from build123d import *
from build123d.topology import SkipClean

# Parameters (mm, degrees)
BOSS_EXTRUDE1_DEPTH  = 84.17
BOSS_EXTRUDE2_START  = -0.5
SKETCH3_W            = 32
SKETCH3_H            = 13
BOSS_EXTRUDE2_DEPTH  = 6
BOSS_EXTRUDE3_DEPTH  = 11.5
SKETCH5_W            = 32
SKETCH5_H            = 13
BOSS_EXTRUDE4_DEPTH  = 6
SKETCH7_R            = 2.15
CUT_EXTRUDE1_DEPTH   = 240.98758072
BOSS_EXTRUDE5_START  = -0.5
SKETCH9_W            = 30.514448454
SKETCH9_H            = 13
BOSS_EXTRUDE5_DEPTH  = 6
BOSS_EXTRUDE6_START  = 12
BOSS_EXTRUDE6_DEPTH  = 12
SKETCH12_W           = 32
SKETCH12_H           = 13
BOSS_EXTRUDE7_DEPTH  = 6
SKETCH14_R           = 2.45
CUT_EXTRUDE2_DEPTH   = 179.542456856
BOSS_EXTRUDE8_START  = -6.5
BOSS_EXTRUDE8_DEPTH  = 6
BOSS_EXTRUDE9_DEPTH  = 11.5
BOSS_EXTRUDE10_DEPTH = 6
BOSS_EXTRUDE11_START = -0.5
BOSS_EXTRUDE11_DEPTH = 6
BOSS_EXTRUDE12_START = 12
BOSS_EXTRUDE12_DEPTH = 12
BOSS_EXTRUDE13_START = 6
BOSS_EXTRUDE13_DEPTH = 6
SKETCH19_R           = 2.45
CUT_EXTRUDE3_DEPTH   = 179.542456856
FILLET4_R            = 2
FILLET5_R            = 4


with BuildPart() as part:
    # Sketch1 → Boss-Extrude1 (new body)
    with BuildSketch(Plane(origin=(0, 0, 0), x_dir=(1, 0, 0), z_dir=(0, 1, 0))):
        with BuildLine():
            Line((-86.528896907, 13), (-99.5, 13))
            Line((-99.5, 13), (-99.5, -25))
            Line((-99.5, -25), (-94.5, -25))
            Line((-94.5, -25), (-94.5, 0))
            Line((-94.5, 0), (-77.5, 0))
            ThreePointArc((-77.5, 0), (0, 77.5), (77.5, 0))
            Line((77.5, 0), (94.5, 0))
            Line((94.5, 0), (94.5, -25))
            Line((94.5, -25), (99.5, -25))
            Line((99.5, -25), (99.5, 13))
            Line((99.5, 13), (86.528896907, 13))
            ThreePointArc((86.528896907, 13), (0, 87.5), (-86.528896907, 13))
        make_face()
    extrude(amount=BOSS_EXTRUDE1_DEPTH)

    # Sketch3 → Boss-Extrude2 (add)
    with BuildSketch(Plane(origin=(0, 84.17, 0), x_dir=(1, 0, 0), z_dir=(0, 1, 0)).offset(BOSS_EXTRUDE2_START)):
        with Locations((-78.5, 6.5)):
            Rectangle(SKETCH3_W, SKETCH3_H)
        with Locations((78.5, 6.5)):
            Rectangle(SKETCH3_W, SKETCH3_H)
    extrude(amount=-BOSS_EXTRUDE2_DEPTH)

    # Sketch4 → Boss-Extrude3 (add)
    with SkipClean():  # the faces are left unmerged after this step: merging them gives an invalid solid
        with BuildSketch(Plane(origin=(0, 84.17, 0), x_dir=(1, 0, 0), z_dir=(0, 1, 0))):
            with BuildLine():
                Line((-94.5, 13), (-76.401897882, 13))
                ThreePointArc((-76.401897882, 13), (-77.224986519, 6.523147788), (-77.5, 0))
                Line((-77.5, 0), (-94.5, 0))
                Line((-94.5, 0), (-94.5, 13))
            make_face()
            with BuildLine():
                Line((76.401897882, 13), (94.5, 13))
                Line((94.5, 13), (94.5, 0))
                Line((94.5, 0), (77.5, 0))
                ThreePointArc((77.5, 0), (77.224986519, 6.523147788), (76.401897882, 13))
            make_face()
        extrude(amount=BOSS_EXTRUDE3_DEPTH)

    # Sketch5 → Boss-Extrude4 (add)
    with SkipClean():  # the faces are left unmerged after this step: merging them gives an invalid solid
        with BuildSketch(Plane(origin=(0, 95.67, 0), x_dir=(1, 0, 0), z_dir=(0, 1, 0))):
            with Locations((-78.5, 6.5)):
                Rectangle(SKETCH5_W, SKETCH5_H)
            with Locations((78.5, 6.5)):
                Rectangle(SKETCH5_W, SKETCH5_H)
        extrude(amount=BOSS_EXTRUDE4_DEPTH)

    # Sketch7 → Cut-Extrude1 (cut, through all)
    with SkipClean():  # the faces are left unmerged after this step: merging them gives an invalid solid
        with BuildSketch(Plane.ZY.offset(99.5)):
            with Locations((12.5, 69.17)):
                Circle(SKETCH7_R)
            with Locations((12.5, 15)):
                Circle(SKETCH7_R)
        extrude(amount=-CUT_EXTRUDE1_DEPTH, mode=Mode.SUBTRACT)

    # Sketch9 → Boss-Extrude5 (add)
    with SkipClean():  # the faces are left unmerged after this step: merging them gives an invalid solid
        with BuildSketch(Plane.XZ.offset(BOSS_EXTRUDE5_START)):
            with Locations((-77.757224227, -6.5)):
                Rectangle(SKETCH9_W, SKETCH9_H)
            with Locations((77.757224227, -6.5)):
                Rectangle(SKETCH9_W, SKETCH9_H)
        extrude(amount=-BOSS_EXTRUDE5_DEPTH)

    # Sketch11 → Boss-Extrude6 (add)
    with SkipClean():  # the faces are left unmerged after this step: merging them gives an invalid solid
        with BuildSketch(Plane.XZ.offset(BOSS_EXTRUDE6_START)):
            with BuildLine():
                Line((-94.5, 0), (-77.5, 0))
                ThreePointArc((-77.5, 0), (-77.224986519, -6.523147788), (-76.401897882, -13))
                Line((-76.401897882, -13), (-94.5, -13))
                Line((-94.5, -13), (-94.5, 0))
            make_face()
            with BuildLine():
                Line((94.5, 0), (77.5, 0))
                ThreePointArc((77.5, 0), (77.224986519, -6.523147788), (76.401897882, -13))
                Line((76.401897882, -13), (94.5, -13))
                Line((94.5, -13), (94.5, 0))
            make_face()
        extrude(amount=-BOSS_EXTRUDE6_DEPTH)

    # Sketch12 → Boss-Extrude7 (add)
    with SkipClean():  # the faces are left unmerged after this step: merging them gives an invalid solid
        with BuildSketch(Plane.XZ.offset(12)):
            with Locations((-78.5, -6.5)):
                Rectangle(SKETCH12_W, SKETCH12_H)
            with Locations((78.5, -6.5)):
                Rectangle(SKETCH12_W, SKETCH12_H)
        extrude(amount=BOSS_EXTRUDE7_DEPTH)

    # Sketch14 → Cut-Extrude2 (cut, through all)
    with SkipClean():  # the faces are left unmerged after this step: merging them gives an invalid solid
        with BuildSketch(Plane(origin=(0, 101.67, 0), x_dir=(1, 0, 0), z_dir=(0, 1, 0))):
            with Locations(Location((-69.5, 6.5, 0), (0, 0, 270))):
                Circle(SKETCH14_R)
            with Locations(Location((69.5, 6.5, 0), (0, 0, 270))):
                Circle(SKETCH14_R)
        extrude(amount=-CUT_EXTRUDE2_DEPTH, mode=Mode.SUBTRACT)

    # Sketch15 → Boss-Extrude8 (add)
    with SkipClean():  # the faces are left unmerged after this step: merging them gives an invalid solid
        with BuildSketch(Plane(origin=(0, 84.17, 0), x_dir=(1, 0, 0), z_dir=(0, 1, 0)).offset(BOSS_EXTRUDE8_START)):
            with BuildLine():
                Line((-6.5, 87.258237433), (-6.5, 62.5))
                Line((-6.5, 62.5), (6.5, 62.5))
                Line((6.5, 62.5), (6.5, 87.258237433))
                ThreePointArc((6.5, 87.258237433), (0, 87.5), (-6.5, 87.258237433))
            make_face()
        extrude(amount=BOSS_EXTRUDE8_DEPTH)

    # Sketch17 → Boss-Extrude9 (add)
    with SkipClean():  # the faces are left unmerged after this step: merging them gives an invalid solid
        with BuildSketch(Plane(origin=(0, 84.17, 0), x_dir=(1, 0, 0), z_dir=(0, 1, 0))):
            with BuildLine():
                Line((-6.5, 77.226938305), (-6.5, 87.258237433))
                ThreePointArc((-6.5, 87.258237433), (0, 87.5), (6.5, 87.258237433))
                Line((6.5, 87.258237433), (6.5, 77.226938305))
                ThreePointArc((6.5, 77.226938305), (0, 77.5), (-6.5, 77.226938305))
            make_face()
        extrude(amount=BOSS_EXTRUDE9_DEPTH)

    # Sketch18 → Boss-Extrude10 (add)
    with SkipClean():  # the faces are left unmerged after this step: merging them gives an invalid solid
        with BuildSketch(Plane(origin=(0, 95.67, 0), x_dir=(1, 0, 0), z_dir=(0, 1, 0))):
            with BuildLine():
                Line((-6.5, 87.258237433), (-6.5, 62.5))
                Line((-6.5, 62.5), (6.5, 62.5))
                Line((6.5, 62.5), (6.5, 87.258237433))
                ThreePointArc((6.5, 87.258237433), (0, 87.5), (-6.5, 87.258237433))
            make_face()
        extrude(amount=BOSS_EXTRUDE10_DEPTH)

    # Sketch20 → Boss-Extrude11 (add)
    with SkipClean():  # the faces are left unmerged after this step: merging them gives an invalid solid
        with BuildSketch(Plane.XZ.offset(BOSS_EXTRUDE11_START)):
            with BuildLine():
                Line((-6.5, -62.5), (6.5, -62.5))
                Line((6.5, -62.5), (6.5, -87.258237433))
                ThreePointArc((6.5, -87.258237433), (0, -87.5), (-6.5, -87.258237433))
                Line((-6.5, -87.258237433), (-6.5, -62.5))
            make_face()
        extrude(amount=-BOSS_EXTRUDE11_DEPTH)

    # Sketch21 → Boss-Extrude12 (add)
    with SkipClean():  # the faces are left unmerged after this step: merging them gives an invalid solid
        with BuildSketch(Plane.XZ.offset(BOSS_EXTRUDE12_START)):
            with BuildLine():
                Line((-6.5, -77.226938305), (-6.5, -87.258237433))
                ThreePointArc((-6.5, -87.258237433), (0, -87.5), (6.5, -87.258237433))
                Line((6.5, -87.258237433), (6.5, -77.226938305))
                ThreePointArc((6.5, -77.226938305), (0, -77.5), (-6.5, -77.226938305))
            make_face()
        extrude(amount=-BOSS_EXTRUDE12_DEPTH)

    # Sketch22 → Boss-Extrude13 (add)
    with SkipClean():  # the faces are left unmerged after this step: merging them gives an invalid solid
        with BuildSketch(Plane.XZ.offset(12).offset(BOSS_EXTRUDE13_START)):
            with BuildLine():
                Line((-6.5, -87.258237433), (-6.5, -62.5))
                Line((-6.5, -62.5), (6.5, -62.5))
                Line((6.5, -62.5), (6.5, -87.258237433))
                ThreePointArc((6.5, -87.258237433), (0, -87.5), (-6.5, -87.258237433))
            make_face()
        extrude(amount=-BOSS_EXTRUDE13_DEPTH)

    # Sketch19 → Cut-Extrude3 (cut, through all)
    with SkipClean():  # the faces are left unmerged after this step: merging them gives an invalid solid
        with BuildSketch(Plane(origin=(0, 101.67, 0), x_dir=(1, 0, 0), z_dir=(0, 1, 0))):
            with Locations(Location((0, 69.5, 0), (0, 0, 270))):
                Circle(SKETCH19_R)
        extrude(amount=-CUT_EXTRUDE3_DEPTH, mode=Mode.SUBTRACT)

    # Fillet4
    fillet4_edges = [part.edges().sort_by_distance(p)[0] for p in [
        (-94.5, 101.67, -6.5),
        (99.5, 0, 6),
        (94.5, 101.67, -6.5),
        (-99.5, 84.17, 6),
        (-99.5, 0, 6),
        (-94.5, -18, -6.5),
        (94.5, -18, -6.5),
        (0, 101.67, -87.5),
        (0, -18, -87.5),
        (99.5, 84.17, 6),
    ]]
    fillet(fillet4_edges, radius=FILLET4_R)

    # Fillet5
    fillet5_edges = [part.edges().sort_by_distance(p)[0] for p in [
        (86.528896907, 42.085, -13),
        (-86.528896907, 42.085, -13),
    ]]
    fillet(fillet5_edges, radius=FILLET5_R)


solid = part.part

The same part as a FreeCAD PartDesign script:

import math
import FreeCAD as App
import Part
import Sketcher
from FreeCAD import Vector


def edges_at(feature, points):
    """Names of the edges that pass closest to the given points."""
    edges = feature.Shape.Edges
    near = lambda p: min(range(len(edges)), key=lambda i: edges[i].distToShape(Part.Vertex(*p))[0])
    return sorted({f"Edge{near(p) + 1}" for p in points})

doc = App.newDocument("Part")
body = doc.addObject("PartDesign::Body", "Body")

# Sketch on XZ plane
sketch1 = body.newObject("Sketcher::SketchObject", "Sketch")
sketch1.AttachmentSupport = (doc.getObject("XZ_Plane"), [""])
sketch1.MapMode = "FlatFace"
sketch1.addGeometry(Part.LineSegment(Vector(-87, -13, 0), Vector(-100, -13, 0)), False)
sketch1.addGeometry(Part.LineSegment(Vector(-100, -13, 0), Vector(-100, 25, 0)), False)
sketch1.addGeometry(Part.LineSegment(Vector(-100, 25, 0), Vector(-94, 25, 0)), False)
sketch1.addGeometry(Part.LineSegment(Vector(-94, 25, 0), Vector(-94, 0, 0)), False)
sketch1.addGeometry(Part.LineSegment(Vector(-94, 0, 0), Vector(-78, 0, 0)), False)
sketch1.addGeometry(Part.ArcOfCircle(Part.Circle(Vector(0, 0, 0), Vector(0, 0, 1), 78), math.radians(180), math.radians(360)), False)
sketch1.addGeometry(Part.LineSegment(Vector(78, 0, 0), Vector(94, 0, 0)), False)
sketch1.addGeometry(Part.LineSegment(Vector(94, 0, 0), Vector(94, 25, 0)), False)
sketch1.addGeometry(Part.LineSegment(Vector(94, 25, 0), Vector(100, 25, 0)), False)
sketch1.addGeometry(Part.LineSegment(Vector(100, 25, 0), Vector(100, -13, 0)), False)
sketch1.addGeometry(Part.LineSegment(Vector(100, -13, 0), Vector(87, -13, 0)), False)
sketch1.addGeometry(Part.ArcOfCircle(Part.Circle(Vector(0, 0, 0), Vector(0, 0, 1), 88), math.radians(-171), math.radians(-9)), False)
sketch1.addConstraint(Sketcher.Constraint("Coincident", 0, 2, 1, 1))
sketch1.addConstraint(Sketcher.Constraint("Coincident", 1, 2, 2, 1))
sketch1.addConstraint(Sketcher.Constraint("Coincident", 2, 2, 3, 1))
sketch1.addConstraint(Sketcher.Constraint("Coincident", 3, 2, 4, 1))
sketch1.addConstraint(Sketcher.Constraint("Coincident", 4, 2, 5, 1))
sketch1.addConstraint(Sketcher.Constraint("Coincident", 5, 2, 6, 1))
sketch1.addConstraint(Sketcher.Constraint("Coincident", 6, 2, 7, 1))
sketch1.addConstraint(Sketcher.Constraint("Coincident", 7, 2, 8, 1))
sketch1.addConstraint(Sketcher.Constraint("Coincident", 8, 2, 9, 1))
sketch1.addConstraint(Sketcher.Constraint("Coincident", 9, 2, 10, 1))
sketch1.addConstraint(Sketcher.Constraint("Coincident", 10, 2, 11, 2))
sketch1.addConstraint(Sketcher.Constraint("Coincident", 11, 1, 0, 1))
sketch1.addConstraint(Sketcher.Constraint("Horizontal", 0))
sketch1.addConstraint(Sketcher.Constraint("Vertical", 1))
sketch1.addConstraint(Sketcher.Constraint("Horizontal", 2))
sketch1.addConstraint(Sketcher.Constraint("Vertical", 3))
sketch1.addConstraint(Sketcher.Constraint("Horizontal", 4))
sketch1.addConstraint(Sketcher.Constraint("Horizontal", 6))
sketch1.addConstraint(Sketcher.Constraint("Vertical", 7))
sketch1.addConstraint(Sketcher.Constraint("Horizontal", 8))
sketch1.addConstraint(Sketcher.Constraint("Vertical", 9))
sketch1.addConstraint(Sketcher.Constraint("Horizontal", 10))
sketch1.addConstraint(Sketcher.Constraint("Coincident", 5, 3, -1, 1))
sketch1.addConstraint(Sketcher.Constraint("Coincident", 11, 3, -1, 1))
sketch1.addConstraint(Sketcher.Constraint("Symmetric", 3, 2, 6, 2, -1, 1))
sketch1.addConstraint(Sketcher.Constraint("Symmetric", 1, 2, 8, 2, -2))
sketch1.addConstraint(Sketcher.Constraint("PointOnObject", 3, 2, -1))
sketch1.addConstraint(Sketcher.Constraint("Horizontal", 0, 2, 9, 2))
sketch1.addConstraint(Sketcher.Constraint("Radius", 5, 77.5))
sketch1.addConstraint(Sketcher.Constraint("Radius", 11, 87.5))
sketch1.addConstraint(Sketcher.Constraint("DistanceX", 2, 1, 2, 2, 5.0))
sketch1.addConstraint(Sketcher.Constraint("DistanceX", 4, 1, 4, 2, 17.0))
sketch1.addConstraint(Sketcher.Constraint("DistanceY", 1, 1, 1, 2, 38.0))
sketch1.addConstraint(Sketcher.Constraint("DistanceY", 3, 2, 3, 1, 25.0))
pad1 = body.newObject("PartDesign::Pad", "Pad")
pad1.Profile = sketch1
pad1.Length = 84.17
pad1.Reversed = True

# Sketch on XZ plane
sketch2 = body.newObject("Sketcher::SketchObject", "Sketch001")
sketch2.AttachmentSupport = (doc.getObject("XZ_Plane"), [""])
sketch2.MapMode = "FlatFace"
sketch2.AttachmentOffset = App.Placement(Vector(0, 0, -83.67), App.Rotation())
sketch2.addGeometry(Part.LineSegment(Vector(-94, -13, 0), Vector(-94, 0, 0)), False)
sketch2.addGeometry(Part.LineSegment(Vector(-94, 0, 0), Vector(-62, 0, 0)), False)
sketch2.addGeometry(Part.LineSegment(Vector(-62, 0, 0), Vector(-62, -13, 0)), False)
sketch2.addGeometry(Part.LineSegment(Vector(-62, -13, 0), Vector(-94, -13, 0)), False)
sketch2.addGeometry(Part.LineSegment(Vector(62, -13, 0), Vector(62, 0, 0)), False)
sketch2.addGeometry(Part.LineSegment(Vector(62, 0, 0), Vector(94, 0, 0)), False)
sketch2.addGeometry(Part.LineSegment(Vector(94, 0, 0), Vector(94, -13, 0)), False)
sketch2.addGeometry(Part.LineSegment(Vector(94, -13, 0), Vector(62, -13, 0)), False)
sketch2.addConstraint(Sketcher.Constraint("Coincident", 0, 2, 1, 1))
sketch2.addConstraint(Sketcher.Constraint("Coincident", 1, 2, 2, 1))
sketch2.addConstraint(Sketcher.Constraint("Coincident", 2, 2, 3, 1))
sketch2.addConstraint(Sketcher.Constraint("Coincident", 3, 2, 0, 1))
sketch2.addConstraint(Sketcher.Constraint("Coincident", 4, 2, 5, 1))
sketch2.addConstraint(Sketcher.Constraint("Coincident", 5, 2, 6, 1))
sketch2.addConstraint(Sketcher.Constraint("Coincident", 6, 2, 7, 1))
sketch2.addConstraint(Sketcher.Constraint("Coincident", 7, 2, 4, 1))
sketch2.addConstraint(Sketcher.Constraint("Vertical", 0))
sketch2.addConstraint(Sketcher.Constraint("Horizontal", 1))
sketch2.addConstraint(Sketcher.Constraint("Vertical", 2))
sketch2.addConstraint(Sketcher.Constraint("Horizontal", 3))
sketch2.addConstraint(Sketcher.Constraint("Vertical", 4))
sketch2.addConstraint(Sketcher.Constraint("Horizontal", 5))
sketch2.addConstraint(Sketcher.Constraint("Vertical", 6))
sketch2.addConstraint(Sketcher.Constraint("Horizontal", 7))
sketch2.addConstraint(Sketcher.Constraint("Symmetric", 1, 2, 4, 2, -1, 1))
sketch2.addConstraint(Sketcher.Constraint("Symmetric", 0, 2, 5, 2, -2))
sketch2.addConstraint(Sketcher.Constraint("Horizontal", 3, 2, 6, 2))
sketch2.addConstraint(Sketcher.Constraint("DistanceX", 1, 1, 1, 2, 32.0))
sketch2.addConstraint(Sketcher.Constraint("DistanceY", 0, 1, 0, 2, 13.0))
sketch2.addConstraint(Sketcher.Constraint("DistanceX", 1, 2, 4, 2, 125.0))
pad2 = body.newObject("PartDesign::Pad", "Pad001")
pad2.Profile = sketch2
pad2.Length = 6

# Sketch on XZ plane
sketch3 = body.newObject("Sketcher::SketchObject", "Sketch002")
sketch3.AttachmentSupport = (doc.getObject("XZ_Plane"), [""])
sketch3.MapMode = "FlatFace"
sketch3.AttachmentOffset = App.Placement(Vector(0, 0, -84.17), App.Rotation())
sketch3.addGeometry(Part.LineSegment(Vector(-76, -13, 0), Vector(-94, -13, 0)), False)
sketch3.addGeometry(Part.LineSegment(Vector(-94, -13, 0), Vector(-94, 0, 0)), False)
sketch3.addGeometry(Part.LineSegment(Vector(-94, 0, 0), Vector(-78, 0, 0)), False)
sketch3.addGeometry(Part.ArcOfCircle(Part.Circle(Vector(0, 0, 0), Vector(0, 0, 1), 78), math.radians(-180), math.radians(-170.34)), False)
sketch3.addGeometry(Part.LineSegment(Vector(94, -13, 0), Vector(76, -13, 0)), False)
sketch3.addGeometry(Part.ArcOfCircle(Part.Circle(Vector(0, 0, 0), Vector(0, 0, 1), 78), math.radians(-9.66), math.radians(0)), False)
sketch3.addGeometry(Part.LineSegment(Vector(78, 0, 0), Vector(94, 0, 0)), False)
sketch3.addGeometry(Part.LineSegment(Vector(94, 0, 0), Vector(94, -13, 0)), False)
sketch3.addConstraint(Sketcher.Constraint("Coincident", 0, 2, 1, 1))
sketch3.addConstraint(Sketcher.Constraint("Coincident", 1, 2, 2, 1))
sketch3.addConstraint(Sketcher.Constraint("Coincident", 2, 2, 3, 1))
sketch3.addConstraint(Sketcher.Constraint("Coincident", 3, 2, 0, 1))
sketch3.addConstraint(Sketcher.Constraint("Coincident", 4, 2, 5, 1))
sketch3.addConstraint(Sketcher.Constraint("Coincident", 5, 2, 6, 1))
sketch3.addConstraint(Sketcher.Constraint("Coincident", 6, 2, 7, 1))
sketch3.addConstraint(Sketcher.Constraint("Coincident", 7, 2, 4, 1))
sketch3.addConstraint(Sketcher.Constraint("Horizontal", 0))
sketch3.addConstraint(Sketcher.Constraint("Vertical", 1))
sketch3.addConstraint(Sketcher.Constraint("Horizontal", 2))
sketch3.addConstraint(Sketcher.Constraint("Horizontal", 4))
sketch3.addConstraint(Sketcher.Constraint("Horizontal", 6))
sketch3.addConstraint(Sketcher.Constraint("Vertical", 7))
sketch3.addConstraint(Sketcher.Constraint("Coincident", 3, 3, -1, 1))
sketch3.addConstraint(Sketcher.Constraint("Coincident", 5, 3, -1, 1))
sketch3.addConstraint(Sketcher.Constraint("Equal", 3, 5))
sketch3.addConstraint(Sketcher.Constraint("Symmetric", 1, 2, 6, 2, -1, 1))
sketch3.addConstraint(Sketcher.Constraint("PointOnObject", 1, 2, -1))
sketch3.addConstraint(Sketcher.Constraint("Horizontal", 3, 2, 4, 2))
sketch3.addConstraint(Sketcher.Constraint("Radius", 3, 77.5))
sketch3.addConstraint(Sketcher.Constraint("DistanceX", 2, 1, 2, 2, 17.0))
sketch3.addConstraint(Sketcher.Constraint("DistanceY", 1, 1, 1, 2, 13.0))
pad3 = body.newObject("PartDesign::Pad", "Pad002")
pad3.Profile = sketch3
pad3.Length = 11.5
pad3.Reversed = True

# Sketch on XZ plane
sketch4 = body.newObject("Sketcher::SketchObject", "Sketch003")
sketch4.AttachmentSupport = (doc.getObject("XZ_Plane"), [""])
sketch4.MapMode = "FlatFace"
sketch4.AttachmentOffset = App.Placement(Vector(0, 0, -95.67), App.Rotation())
sketch4.addGeometry(Part.LineSegment(Vector(-94, -13, 0), Vector(-94, 0, 0)), False)
sketch4.addGeometry(Part.LineSegment(Vector(-94, 0, 0), Vector(-62, 0, 0)), False)
sketch4.addGeometry(Part.LineSegment(Vector(-62, 0, 0), Vector(-62, -13, 0)), False)
sketch4.addGeometry(Part.LineSegment(Vector(-62, -13, 0), Vector(-94, -13, 0)), False)
sketch4.addGeometry(Part.LineSegment(Vector(62, -13, 0), Vector(62, 0, 0)), False)
sketch4.addGeometry(Part.LineSegment(Vector(62, 0, 0), Vector(94, 0, 0)), False)
sketch4.addGeometry(Part.LineSegment(Vector(94, 0, 0), Vector(94, -13, 0)), False)
sketch4.addGeometry(Part.LineSegment(Vector(94, -13, 0), Vector(62, -13, 0)), False)
sketch4.addConstraint(Sketcher.Constraint("Coincident", 0, 2, 1, 1))
sketch4.addConstraint(Sketcher.Constraint("Coincident", 1, 2, 2, 1))
sketch4.addConstraint(Sketcher.Constraint("Coincident", 2, 2, 3, 1))
sketch4.addConstraint(Sketcher.Constraint("Coincident", 3, 2, 0, 1))
sketch4.addConstraint(Sketcher.Constraint("Coincident", 4, 2, 5, 1))
sketch4.addConstraint(Sketcher.Constraint("Coincident", 5, 2, 6, 1))
sketch4.addConstraint(Sketcher.Constraint("Coincident", 6, 2, 7, 1))
sketch4.addConstraint(Sketcher.Constraint("Coincident", 7, 2, 4, 1))
sketch4.addConstraint(Sketcher.Constraint("Vertical", 0))
sketch4.addConstraint(Sketcher.Constraint("Horizontal", 1))
sketch4.addConstraint(Sketcher.Constraint("Vertical", 2))
sketch4.addConstraint(Sketcher.Constraint("Horizontal", 3))
sketch4.addConstraint(Sketcher.Constraint("Vertical", 4))
sketch4.addConstraint(Sketcher.Constraint("Horizontal", 5))
sketch4.addConstraint(Sketcher.Constraint("Vertical", 6))
sketch4.addConstraint(Sketcher.Constraint("Horizontal", 7))
sketch4.addConstraint(Sketcher.Constraint("Symmetric", 1, 2, 4, 2, -1, 1))
sketch4.addConstraint(Sketcher.Constraint("Symmetric", 0, 2, 5, 2, -2))
sketch4.addConstraint(Sketcher.Constraint("Horizontal", 3, 2, 6, 2))
sketch4.addConstraint(Sketcher.Constraint("DistanceX", 1, 1, 1, 2, 32.0))
sketch4.addConstraint(Sketcher.Constraint("DistanceY", 0, 1, 0, 2, 13.0))
sketch4.addConstraint(Sketcher.Constraint("DistanceX", 1, 2, 4, 2, 125.0))
pad4 = body.newObject("PartDesign::Pad", "Pad003")
pad4.Profile = sketch4
pad4.Length = 6
pad4.Reversed = True

# Sketch on YZ plane
sketch5 = body.newObject("Sketcher::SketchObject", "Sketch004")
sketch5.AttachmentSupport = (doc.getObject("YZ_Plane"), [""])
sketch5.MapMode = "FlatFace"
sketch5.AttachmentOffset = App.Placement(Vector(0, 0, -99.5), App.Rotation())
sketch5.addGeometry(Part.Circle(Vector(69.2, 12.5, 0), Vector(0, 0, 1), 2.1), False)
sketch5.addGeometry(Part.Circle(Vector(15, 12.5, 0), Vector(0, 0, 1), 2.1), False)
sketch5.addConstraint(Sketcher.Constraint("Equal", 0, 1))
sketch5.addConstraint(Sketcher.Constraint("Horizontal", 0, 3, 1, 3))
sketch5.addConstraint(Sketcher.Constraint("Diameter", 0, 4.3))
sketch5.addConstraint(Sketcher.Constraint("DistanceX", -1, 1, 1, 3, 15.0))
sketch5.addConstraint(Sketcher.Constraint("DistanceY", -1, 1, 0, 3, 12.5))
sketch5.addConstraint(Sketcher.Constraint("DistanceX", -1, 1, 0, 3, 69.17))
pocket1 = body.newObject("PartDesign::Pocket", "Pocket")
pocket1.Profile = sketch5
pocket1.Type = "ThroughAll"
pocket1.Reversed = True

# Sketch on XZ plane
sketch6 = body.newObject("Sketcher::SketchObject", "Sketch005")
sketch6.AttachmentSupport = (doc.getObject("XZ_Plane"), [""])
sketch6.MapMode = "FlatFace"
sketch6.AttachmentOffset = App.Placement(Vector(0, 0, -0.5), App.Rotation())
sketch6.addGeometry(Part.LineSegment(Vector(-93, 0, 0), Vector(-93, -13, 0)), False)
sketch6.addGeometry(Part.LineSegment(Vector(-93, -13, 0), Vector(-62, -13, 0)), False)
sketch6.addGeometry(Part.LineSegment(Vector(-62, -13, 0), Vector(-62, 0, 0)), False)
sketch6.addGeometry(Part.LineSegment(Vector(-62, 0, 0), Vector(-93, 0, 0)), False)
sketch6.addGeometry(Part.LineSegment(Vector(62, 0, 0), Vector(62, -13, 0)), False)
sketch6.addGeometry(Part.LineSegment(Vector(62, -13, 0), Vector(93, -13, 0)), False)
sketch6.addGeometry(Part.LineSegment(Vector(93, -13, 0), Vector(93, 0, 0)), False)
sketch6.addGeometry(Part.LineSegment(Vector(93, 0, 0), Vector(62, 0, 0)), False)
sketch6.addConstraint(Sketcher.Constraint("Coincident", 0, 2, 1, 1))
sketch6.addConstraint(Sketcher.Constraint("Coincident", 1, 2, 2, 1))
sketch6.addConstraint(Sketcher.Constraint("Coincident", 2, 2, 3, 1))
sketch6.addConstraint(Sketcher.Constraint("Coincident", 3, 2, 0, 1))
sketch6.addConstraint(Sketcher.Constraint("Coincident", 4, 2, 5, 1))
sketch6.addConstraint(Sketcher.Constraint("Coincident", 5, 2, 6, 1))
sketch6.addConstraint(Sketcher.Constraint("Coincident", 6, 2, 7, 1))
sketch6.addConstraint(Sketcher.Constraint("Coincident", 7, 2, 4, 1))
sketch6.addConstraint(Sketcher.Constraint("Vertical", 0))
sketch6.addConstraint(Sketcher.Constraint("Horizontal", 1))
sketch6.addConstraint(Sketcher.Constraint("Vertical", 2))
sketch6.addConstraint(Sketcher.Constraint("Horizontal", 3))
sketch6.addConstraint(Sketcher.Constraint("Vertical", 4))
sketch6.addConstraint(Sketcher.Constraint("Horizontal", 5))
sketch6.addConstraint(Sketcher.Constraint("Vertical", 6))
sketch6.addConstraint(Sketcher.Constraint("Horizontal", 7))
sketch6.addConstraint(Sketcher.Constraint("Symmetric", 3, 2, 6, 2, -1, 1))
sketch6.addConstraint(Sketcher.Constraint("Symmetric", 1, 2, 4, 2, -2))
sketch6.addConstraint(Sketcher.Constraint("PointOnObject", 2, 2, -1))
sketch6.addConstraint(Sketcher.Constraint("DistanceY", 0, 2, 0, 1, 13.0))
sketch6.addConstraint(Sketcher.Constraint("DistanceX", 1, 2, 4, 2, 125.0))
sketch6.addConstraint(Sketcher.Constraint("DistanceX", 1, 1, 1, 2, 30.514448))
pad5 = body.newObject("PartDesign::Pad", "Pad004")
pad5.Profile = sketch6
pad5.Length = 6
pad5.Reversed = True

# Sketch on XZ plane
sketch7 = body.newObject("Sketcher::SketchObject", "Sketch006")
sketch7.AttachmentSupport = (doc.getObject("XZ_Plane"), [""])
sketch7.MapMode = "FlatFace"
sketch7.AttachmentOffset = App.Placement(Vector(0, 0, 12), App.Rotation())
sketch7.addGeometry(Part.LineSegment(Vector(-78, 0, 0), Vector(-94, 0, 0)), False)
sketch7.addGeometry(Part.LineSegment(Vector(-94, 0, 0), Vector(-94, -13, 0)), False)
sketch7.addGeometry(Part.LineSegment(Vector(-94, -13, 0), Vector(-76, -13, 0)), False)
sketch7.addGeometry(Part.ArcOfCircle(Part.Circle(Vector(0, 0, 0), Vector(0, 0, 1), 78), math.radians(-180), math.radians(-170.34)), False)
sketch7.addGeometry(Part.LineSegment(Vector(94, 0, 0), Vector(78, 0, 0)), False)
sketch7.addGeometry(Part.ArcOfCircle(Part.Circle(Vector(0, 0, 0), Vector(0, 0, 1), 78), math.radians(-9.66), math.radians(0)), False)
sketch7.addGeometry(Part.LineSegment(Vector(76, -13, 0), Vector(94, -13, 0)), False)
sketch7.addGeometry(Part.LineSegment(Vector(94, -13, 0), Vector(94, 0, 0)), False)
sketch7.addConstraint(Sketcher.Constraint("Coincident", 0, 2, 1, 1))
sketch7.addConstraint(Sketcher.Constraint("Coincident", 1, 2, 2, 1))
sketch7.addConstraint(Sketcher.Constraint("Coincident", 2, 2, 3, 2))
sketch7.addConstraint(Sketcher.Constraint("Coincident", 3, 1, 0, 1))
sketch7.addConstraint(Sketcher.Constraint("Coincident", 4, 2, 5, 2))
sketch7.addConstraint(Sketcher.Constraint("Coincident", 5, 1, 6, 1))
sketch7.addConstraint(Sketcher.Constraint("Coincident", 6, 2, 7, 1))
sketch7.addConstraint(Sketcher.Constraint("Coincident", 7, 2, 4, 1))
sketch7.addConstraint(Sketcher.Constraint("Horizontal", 0))
sketch7.addConstraint(Sketcher.Constraint("Vertical", 1))
sketch7.addConstraint(Sketcher.Constraint("Horizontal", 2))
sketch7.addConstraint(Sketcher.Constraint("Horizontal", 4))
sketch7.addConstraint(Sketcher.Constraint("Horizontal", 6))
sketch7.addConstraint(Sketcher.Constraint("Vertical", 7))
sketch7.addConstraint(Sketcher.Constraint("Coincident", 3, 3, -1, 1))
sketch7.addConstraint(Sketcher.Constraint("Coincident", 5, 3, -1, 1))
sketch7.addConstraint(Sketcher.Constraint("Equal", 3, 5))
sketch7.addConstraint(Sketcher.Constraint("Symmetric", 0, 2, 7, 2, -1, 1))
sketch7.addConstraint(Sketcher.Constraint("PointOnObject", 0, 2, -1))
sketch7.addConstraint(Sketcher.Constraint("Horizontal", 2, 2, 5, 1))
sketch7.addConstraint(Sketcher.Constraint("Radius", 3, 77.5))
sketch7.addConstraint(Sketcher.Constraint("DistanceX", 0, 2, 0, 1, 17.0))
sketch7.addConstraint(Sketcher.Constraint("DistanceY", 1, 2, 1, 1, 13.0))
pad6 = body.newObject("PartDesign::Pad", "Pad005")
pad6.Profile = sketch7
pad6.Length = 12
pad6.Reversed = True

# Sketch on XZ plane
sketch8 = body.newObject("Sketcher::SketchObject", "Sketch007")
sketch8.AttachmentSupport = (doc.getObject("XZ_Plane"), [""])
sketch8.MapMode = "FlatFace"
sketch8.AttachmentOffset = App.Placement(Vector(0, 0, 12), App.Rotation())
sketch8.addGeometry(Part.LineSegment(Vector(-94, 0, 0), Vector(-94, -13, 0)), False)
sketch8.addGeometry(Part.LineSegment(Vector(-94, -13, 0), Vector(-62, -13, 0)), False)
sketch8.addGeometry(Part.LineSegment(Vector(-62, -13, 0), Vector(-62, 0, 0)), False)
sketch8.addGeometry(Part.LineSegment(Vector(-62, 0, 0), Vector(-94, 0, 0)), False)
sketch8.addGeometry(Part.LineSegment(Vector(62, 0, 0), Vector(62, -13, 0)), False)
sketch8.addGeometry(Part.LineSegment(Vector(62, -13, 0), Vector(94, -13, 0)), False)
sketch8.addGeometry(Part.LineSegment(Vector(94, -13, 0), Vector(94, 0, 0)), False)
sketch8.addGeometry(Part.LineSegment(Vector(94, 0, 0), Vector(62, 0, 0)), False)
sketch8.addConstraint(Sketcher.Constraint("Coincident", 0, 2, 1, 1))
sketch8.addConstraint(Sketcher.Constraint("Coincident", 1, 2, 2, 1))
sketch8.addConstraint(Sketcher.Constraint("Coincident", 2, 2, 3, 1))
sketch8.addConstraint(Sketcher.Constraint("Coincident", 3, 2, 0, 1))
sketch8.addConstraint(Sketcher.Constraint("Coincident", 4, 2, 5, 1))
sketch8.addConstraint(Sketcher.Constraint("Coincident", 5, 2, 6, 1))
sketch8.addConstraint(Sketcher.Constraint("Coincident", 6, 2, 7, 1))
sketch8.addConstraint(Sketcher.Constraint("Coincident", 7, 2, 4, 1))
sketch8.addConstraint(Sketcher.Constraint("Vertical", 0))
sketch8.addConstraint(Sketcher.Constraint("Horizontal", 1))
sketch8.addConstraint(Sketcher.Constraint("Vertical", 2))
sketch8.addConstraint(Sketcher.Constraint("Horizontal", 3))
sketch8.addConstraint(Sketcher.Constraint("Vertical", 4))
sketch8.addConstraint(Sketcher.Constraint("Horizontal", 5))
sketch8.addConstraint(Sketcher.Constraint("Vertical", 6))
sketch8.addConstraint(Sketcher.Constraint("Horizontal", 7))
sketch8.addConstraint(Sketcher.Constraint("Symmetric", 3, 2, 6, 2, -1, 1))
sketch8.addConstraint(Sketcher.Constraint("Symmetric", 1, 2, 4, 2, -2))
sketch8.addConstraint(Sketcher.Constraint("PointOnObject", 2, 2, -1))
sketch8.addConstraint(Sketcher.Constraint("DistanceX", 1, 1, 1, 2, 32.0))
sketch8.addConstraint(Sketcher.Constraint("DistanceY", 0, 2, 0, 1, 13.0))
sketch8.addConstraint(Sketcher.Constraint("DistanceX", 1, 2, 4, 2, 125.0))
pad7 = body.newObject("PartDesign::Pad", "Pad006")
pad7.Profile = sketch8
pad7.Length = 6

# Sketch on XZ plane
sketch9 = body.newObject("Sketcher::SketchObject", "Sketch008")
sketch9.AttachmentSupport = (doc.getObject("XZ_Plane"), [""])
sketch9.MapMode = "FlatFace"
sketch9.AttachmentOffset = App.Placement(Vector(0, 0, -101.67), App.Rotation())
sketch9.addGeometry(Part.Circle(Vector(-69.5, -6.5, 0), Vector(0, 0, 1), 2.5), False)
sketch9.addGeometry(Part.Circle(Vector(69.5, -6.5, 0), Vector(0, 0, 1), 2.5), False)
sketch9.addConstraint(Sketcher.Constraint("Equal", 0, 1))
sketch9.addConstraint(Sketcher.Constraint("Symmetric", 0, 3, 1, 3, -2))
sketch9.addConstraint(Sketcher.Constraint("Diameter", 0, 4.9))
sketch9.addConstraint(Sketcher.Constraint("DistanceX", 0, 3, 1, 3, 139.0))
sketch9.addConstraint(Sketcher.Constraint("DistanceY", 0, 3, -1, 1, 6.5))
pocket2 = body.newObject("PartDesign::Pocket", "Pocket001")
pocket2.Profile = sketch9
pocket2.Type = "ThroughAll"
pocket2.Reversed = True

# Sketch on XZ plane
sketch10 = body.newObject("Sketcher::SketchObject", "Sketch009")
sketch10.AttachmentSupport = (doc.getObject("XZ_Plane"), [""])
sketch10.MapMode = "FlatFace"
sketch10.AttachmentOffset = App.Placement(Vector(0, 0, -77.67), App.Rotation())
sketch10.addGeometry(Part.LineSegment(Vector(-6, -87, 0), Vector(-6, -62, 0)), False)
sketch10.addGeometry(Part.LineSegment(Vector(-6, -62, 0), Vector(6, -62, 0)), False)
sketch10.addGeometry(Part.LineSegment(Vector(6, -62, 0), Vector(6, -87, 0)), False)
sketch10.addGeometry(Part.ArcOfCircle(Part.Circle(Vector(0, 0, 0), Vector(0, 0, 1), 87), math.radians(-94.26), math.radians(-85.74)), False)
sketch10.addConstraint(Sketcher.Constraint("Coincident", 0, 2, 1, 1))
sketch10.addConstraint(Sketcher.Constraint("Coincident", 1, 2, 2, 1))
sketch10.addConstraint(Sketcher.Constraint("Coincident", 2, 2, 3, 2))
sketch10.addConstraint(Sketcher.Constraint("Coincident", 3, 1, 0, 1))
sketch10.addConstraint(Sketcher.Constraint("Vertical", 0))
sketch10.addConstraint(Sketcher.Constraint("Horizontal", 1))
sketch10.addConstraint(Sketcher.Constraint("Vertical", 2))
sketch10.addConstraint(Sketcher.Constraint("Coincident", 3, 3, -1, 1))
sketch10.addConstraint(Sketcher.Constraint("Horizontal", 2, 2, 3, 1))
sketch10.addConstraint(Sketcher.Constraint("Radius", 3, 87.5))
sketch10.addConstraint(Sketcher.Constraint("DistanceX", 1, 1, 1, 2, 13.0))
sketch10.addConstraint(Sketcher.Constraint("DistanceY", 0, 2, -1, 1, 62.5))
pad8 = body.newObject("PartDesign::Pad", "Pad007")
pad8.Profile = sketch10
pad8.Length = 6
pad8.Reversed = True

# Sketch on XZ plane
sketch11 = body.newObject("Sketcher::SketchObject", "Sketch010")
sketch11.AttachmentSupport = (doc.getObject("XZ_Plane"), [""])
sketch11.MapMode = "FlatFace"
sketch11.AttachmentOffset = App.Placement(Vector(0, 0, -84.17), App.Rotation())
sketch11.addGeometry(Part.LineSegment(Vector(-6, -87, 0), Vector(-6, -77, 0)), False)
sketch11.addGeometry(Part.ArcOfCircle(Part.Circle(Vector(0, 0, 0), Vector(0, 0, 1), 77), math.radians(-94.81), math.radians(-85.19)), False)
sketch11.addGeometry(Part.LineSegment(Vector(6, -77, 0), Vector(6, -87, 0)), False)
sketch11.addGeometry(Part.ArcOfCircle(Part.Circle(Vector(0, 0, 0), Vector(0, 0, 1), 87), math.radians(-94.26), math.radians(-85.74)), False)
sketch11.addConstraint(Sketcher.Constraint("Coincident", 0, 2, 1, 1))
sketch11.addConstraint(Sketcher.Constraint("Coincident", 1, 2, 2, 1))
sketch11.addConstraint(Sketcher.Constraint("Coincident", 2, 2, 3, 2))
sketch11.addConstraint(Sketcher.Constraint("Coincident", 3, 1, 0, 1))
sketch11.addConstraint(Sketcher.Constraint("Vertical", 0))
sketch11.addConstraint(Sketcher.Constraint("Vertical", 2))
sketch11.addConstraint(Sketcher.Constraint("Coincident", 1, 3, -1, 1))
sketch11.addConstraint(Sketcher.Constraint("Coincident", 3, 3, -1, 1))
sketch11.addConstraint(Sketcher.Constraint("Horizontal", 0, 2, 1, 2))
sketch11.addConstraint(Sketcher.Constraint("Radius", 1, 77.5))
sketch11.addConstraint(Sketcher.Constraint("Radius", 3, 87.5))
sketch11.addConstraint(Sketcher.Constraint("DistanceX", 0, 2, 1, 2, 13.0))
pad9 = body.newObject("PartDesign::Pad", "Pad008")
pad9.Profile = sketch11
pad9.Length = 11.5
pad9.Reversed = True

# Sketch on XZ plane
sketch12 = body.newObject("Sketcher::SketchObject", "Sketch011")
sketch12.AttachmentSupport = (doc.getObject("XZ_Plane"), [""])
sketch12.MapMode = "FlatFace"
sketch12.AttachmentOffset = App.Placement(Vector(0, 0, -95.67), App.Rotation())
sketch12.addGeometry(Part.LineSegment(Vector(-6, -87, 0), Vector(-6, -62, 0)), False)
sketch12.addGeometry(Part.LineSegment(Vector(-6, -62, 0), Vector(6, -62, 0)), False)
sketch12.addGeometry(Part.LineSegment(Vector(6, -62, 0), Vector(6, -87, 0)), False)
sketch12.addGeometry(Part.ArcOfCircle(Part.Circle(Vector(0, 0, 0), Vector(0, 0, 1), 87), math.radians(-94.26), math.radians(-85.74)), False)
sketch12.addConstraint(Sketcher.Constraint("Coincident", 0, 2, 1, 1))
sketch12.addConstraint(Sketcher.Constraint("Coincident", 1, 2, 2, 1))
sketch12.addConstraint(Sketcher.Constraint("Coincident", 2, 2, 3, 2))
sketch12.addConstraint(Sketcher.Constraint("Coincident", 3, 1, 0, 1))
sketch12.addConstraint(Sketcher.Constraint("Vertical", 0))
sketch12.addConstraint(Sketcher.Constraint("Horizontal", 1))
sketch12.addConstraint(Sketcher.Constraint("Vertical", 2))
sketch12.addConstraint(Sketcher.Constraint("Coincident", 3, 3, -1, 1))
sketch12.addConstraint(Sketcher.Constraint("Horizontal", 2, 2, 3, 1))
sketch12.addConstraint(Sketcher.Constraint("Radius", 3, 87.5))
sketch12.addConstraint(Sketcher.Constraint("DistanceX", 1, 1, 1, 2, 13.0))
sketch12.addConstraint(Sketcher.Constraint("DistanceY", 0, 2, -1, 1, 62.5))
pad10 = body.newObject("PartDesign::Pad", "Pad009")
pad10.Profile = sketch12
pad10.Length = 6
pad10.Reversed = True

# Sketch on XZ plane
sketch13 = body.newObject("Sketcher::SketchObject", "Sketch012")
sketch13.AttachmentSupport = (doc.getObject("XZ_Plane"), [""])
sketch13.MapMode = "FlatFace"
sketch13.AttachmentOffset = App.Placement(Vector(0, 0, -0.5), App.Rotation())
sketch13.addGeometry(Part.LineSegment(Vector(6, -62, 0), Vector(-6, -62, 0)), False)
sketch13.addGeometry(Part.LineSegment(Vector(-6, -62, 0), Vector(-6, -87, 0)), False)
sketch13.addGeometry(Part.ArcOfCircle(Part.Circle(Vector(0, 0, 0), Vector(0, 0, 1), 87), math.radians(-94.26), math.radians(-85.74)), False)
sketch13.addGeometry(Part.LineSegment(Vector(6, -87, 0), Vector(6, -62, 0)), False)
sketch13.addConstraint(Sketcher.Constraint("Coincident", 0, 2, 1, 1))
sketch13.addConstraint(Sketcher.Constraint("Coincident", 1, 2, 2, 1))
sketch13.addConstraint(Sketcher.Constraint("Coincident", 2, 2, 3, 1))
sketch13.addConstraint(Sketcher.Constraint("Coincident", 3, 2, 0, 1))
sketch13.addConstraint(Sketcher.Constraint("Horizontal", 0))
sketch13.addConstraint(Sketcher.Constraint("Vertical", 1))
sketch13.addConstraint(Sketcher.Constraint("Vertical", 3))
sketch13.addConstraint(Sketcher.Constraint("Coincident", 2, 3, -1, 1))
sketch13.addConstraint(Sketcher.Constraint("Horizontal", 1, 2, 2, 2))
sketch13.addConstraint(Sketcher.Constraint("Radius", 2, 87.5))
sketch13.addConstraint(Sketcher.Constraint("DistanceX", 0, 2, 0, 1, 13.0))
sketch13.addConstraint(Sketcher.Constraint("DistanceY", 0, 2, -1, 1, 62.5))
pad11 = body.newObject("PartDesign::Pad", "Pad010")
pad11.Profile = sketch13
pad11.Length = 6
pad11.Reversed = True

# Sketch on XZ plane
sketch14 = body.newObject("Sketcher::SketchObject", "Sketch013")
sketch14.AttachmentSupport = (doc.getObject("XZ_Plane"), [""])
sketch14.MapMode = "FlatFace"
sketch14.AttachmentOffset = App.Placement(Vector(0, 0, 12), App.Rotation())
sketch14.addGeometry(Part.LineSegment(Vector(-6, -77, 0), Vector(-6, -87, 0)), False)
sketch14.addGeometry(Part.ArcOfCircle(Part.Circle(Vector(0, 0, 0), Vector(0, 0, 1), 87), math.radians(-94.26), math.radians(-85.74)), False)
sketch14.addGeometry(Part.LineSegment(Vector(6, -87, 0), Vector(6, -77, 0)), False)
sketch14.addGeometry(Part.ArcOfCircle(Part.Circle(Vector(0, 0, 0), Vector(0, 0, 1), 77), math.radians(-94.81), math.radians(-85.19)), False)
sketch14.addConstraint(Sketcher.Constraint("Coincident", 0, 2, 1, 1))
sketch14.addConstraint(Sketcher.Constraint("Coincident", 1, 2, 2, 1))
sketch14.addConstraint(Sketcher.Constraint("Coincident", 2, 2, 3, 2))
sketch14.addConstraint(Sketcher.Constraint("Coincident", 3, 1, 0, 1))
sketch14.addConstraint(Sketcher.Constraint("Vertical", 0))
sketch14.addConstraint(Sketcher.Constraint("Vertical", 2))
sketch14.addConstraint(Sketcher.Constraint("Coincident", 1, 3, -1, 1))
sketch14.addConstraint(Sketcher.Constraint("Coincident", 3, 3, -1, 1))
sketch14.addConstraint(Sketcher.Constraint("Horizontal", 0, 2, 1, 2))
sketch14.addConstraint(Sketcher.Constraint("Radius", 1, 87.5))
sketch14.addConstraint(Sketcher.Constraint("Radius", 3, 77.5))
sketch14.addConstraint(Sketcher.Constraint("DistanceX", 0, 2, 1, 2, 13.0))
pad12 = body.newObject("PartDesign::Pad", "Pad011")
pad12.Profile = sketch14
pad12.Length = 12
pad12.Reversed = True

# Sketch on XZ plane
sketch15 = body.newObject("Sketcher::SketchObject", "Sketch014")
sketch15.AttachmentSupport = (doc.getObject("XZ_Plane"), [""])
sketch15.MapMode = "FlatFace"
sketch15.AttachmentOffset = App.Placement(Vector(0, 0, 18), App.Rotation())
sketch15.addGeometry(Part.LineSegment(Vector(-6, -62, 0), Vector(-6, -87, 0)), False)
sketch15.addGeometry(Part.ArcOfCircle(Part.Circle(Vector(0, 0, 0), Vector(0, 0, 1), 87), math.radians(-94.26), math.radians(-85.74)), False)
sketch15.addGeometry(Part.LineSegment(Vector(6, -87, 0), Vector(6, -62, 0)), False)
sketch15.addGeometry(Part.LineSegment(Vector(6, -62, 0), Vector(-6, -62, 0)), False)
sketch15.addConstraint(Sketcher.Constraint("Coincident", 0, 2, 1, 1))
sketch15.addConstraint(Sketcher.Constraint("Coincident", 1, 2, 2, 1))
sketch15.addConstraint(Sketcher.Constraint("Coincident", 2, 2, 3, 1))
sketch15.addConstraint(Sketcher.Constraint("Coincident", 3, 2, 0, 1))
sketch15.addConstraint(Sketcher.Constraint("Vertical", 0))
sketch15.addConstraint(Sketcher.Constraint("Vertical", 2))
sketch15.addConstraint(Sketcher.Constraint("Horizontal", 3))
sketch15.addConstraint(Sketcher.Constraint("Coincident", 1, 3, -1, 1))
sketch15.addConstraint(Sketcher.Constraint("Horizontal", 0, 2, 1, 2))
sketch15.addConstraint(Sketcher.Constraint("Radius", 1, 87.5))
sketch15.addConstraint(Sketcher.Constraint("DistanceX", 3, 2, 3, 1, 13.0))
sketch15.addConstraint(Sketcher.Constraint("DistanceY", 2, 2, -1, 1, 62.5))
pad13 = body.newObject("PartDesign::Pad", "Pad012")
pad13.Profile = sketch15
pad13.Length = 6
pad13.Reversed = True

# Sketch on XZ plane
sketch16 = body.newObject("Sketcher::SketchObject", "Sketch015")
sketch16.AttachmentSupport = (doc.getObject("XZ_Plane"), [""])
sketch16.MapMode = "FlatFace"
sketch16.AttachmentOffset = App.Placement(Vector(0, 0, -101.67), App.Rotation())
sketch16.addGeometry(Part.Circle(Vector(0, -69.5, 0), Vector(0, 0, 1), 2.5), False)
sketch16.addConstraint(Sketcher.Constraint("PointOnObject", 0, 3, -2))
sketch16.addConstraint(Sketcher.Constraint("Diameter", 0, 4.9))
sketch16.addConstraint(Sketcher.Constraint("DistanceY", 0, 3, -1, 1, 69.5))
pocket3 = body.newObject("PartDesign::Pocket", "Pocket002")
pocket3.Profile = sketch16
pocket3.Type = "ThroughAll"
pocket3.Reversed = True
doc.recompute()

fillet = body.newObject("PartDesign::Fillet", "Fillet")
fillet.Base = (pocket3, edges_at(pocket3, [
    (-94.5, 101.67, -6.5),
    (99.5, 0, 6),
    (94.5, 101.67, -6.5),
    (-99.5, 84.17, 6),
    (-99.5, 0, 6),
    (-94.5, -18, -6.5),
    (94.5, -18, -6.5),
    (0, 101.67, -87.5),
    (0, -18, -87.5),
    (99.5, 84.17, 6),
]))
fillet.Radius = 2
doc.recompute()

fillet2 = body.newObject("PartDesign::Fillet", "Fillet001")
fillet2.Base = (fillet, edges_at(fillet, [(86.529, 42.085, -13), (-86.529, 42.085, -13)]))
fillet2.Radius = 4

doc.recompute()
